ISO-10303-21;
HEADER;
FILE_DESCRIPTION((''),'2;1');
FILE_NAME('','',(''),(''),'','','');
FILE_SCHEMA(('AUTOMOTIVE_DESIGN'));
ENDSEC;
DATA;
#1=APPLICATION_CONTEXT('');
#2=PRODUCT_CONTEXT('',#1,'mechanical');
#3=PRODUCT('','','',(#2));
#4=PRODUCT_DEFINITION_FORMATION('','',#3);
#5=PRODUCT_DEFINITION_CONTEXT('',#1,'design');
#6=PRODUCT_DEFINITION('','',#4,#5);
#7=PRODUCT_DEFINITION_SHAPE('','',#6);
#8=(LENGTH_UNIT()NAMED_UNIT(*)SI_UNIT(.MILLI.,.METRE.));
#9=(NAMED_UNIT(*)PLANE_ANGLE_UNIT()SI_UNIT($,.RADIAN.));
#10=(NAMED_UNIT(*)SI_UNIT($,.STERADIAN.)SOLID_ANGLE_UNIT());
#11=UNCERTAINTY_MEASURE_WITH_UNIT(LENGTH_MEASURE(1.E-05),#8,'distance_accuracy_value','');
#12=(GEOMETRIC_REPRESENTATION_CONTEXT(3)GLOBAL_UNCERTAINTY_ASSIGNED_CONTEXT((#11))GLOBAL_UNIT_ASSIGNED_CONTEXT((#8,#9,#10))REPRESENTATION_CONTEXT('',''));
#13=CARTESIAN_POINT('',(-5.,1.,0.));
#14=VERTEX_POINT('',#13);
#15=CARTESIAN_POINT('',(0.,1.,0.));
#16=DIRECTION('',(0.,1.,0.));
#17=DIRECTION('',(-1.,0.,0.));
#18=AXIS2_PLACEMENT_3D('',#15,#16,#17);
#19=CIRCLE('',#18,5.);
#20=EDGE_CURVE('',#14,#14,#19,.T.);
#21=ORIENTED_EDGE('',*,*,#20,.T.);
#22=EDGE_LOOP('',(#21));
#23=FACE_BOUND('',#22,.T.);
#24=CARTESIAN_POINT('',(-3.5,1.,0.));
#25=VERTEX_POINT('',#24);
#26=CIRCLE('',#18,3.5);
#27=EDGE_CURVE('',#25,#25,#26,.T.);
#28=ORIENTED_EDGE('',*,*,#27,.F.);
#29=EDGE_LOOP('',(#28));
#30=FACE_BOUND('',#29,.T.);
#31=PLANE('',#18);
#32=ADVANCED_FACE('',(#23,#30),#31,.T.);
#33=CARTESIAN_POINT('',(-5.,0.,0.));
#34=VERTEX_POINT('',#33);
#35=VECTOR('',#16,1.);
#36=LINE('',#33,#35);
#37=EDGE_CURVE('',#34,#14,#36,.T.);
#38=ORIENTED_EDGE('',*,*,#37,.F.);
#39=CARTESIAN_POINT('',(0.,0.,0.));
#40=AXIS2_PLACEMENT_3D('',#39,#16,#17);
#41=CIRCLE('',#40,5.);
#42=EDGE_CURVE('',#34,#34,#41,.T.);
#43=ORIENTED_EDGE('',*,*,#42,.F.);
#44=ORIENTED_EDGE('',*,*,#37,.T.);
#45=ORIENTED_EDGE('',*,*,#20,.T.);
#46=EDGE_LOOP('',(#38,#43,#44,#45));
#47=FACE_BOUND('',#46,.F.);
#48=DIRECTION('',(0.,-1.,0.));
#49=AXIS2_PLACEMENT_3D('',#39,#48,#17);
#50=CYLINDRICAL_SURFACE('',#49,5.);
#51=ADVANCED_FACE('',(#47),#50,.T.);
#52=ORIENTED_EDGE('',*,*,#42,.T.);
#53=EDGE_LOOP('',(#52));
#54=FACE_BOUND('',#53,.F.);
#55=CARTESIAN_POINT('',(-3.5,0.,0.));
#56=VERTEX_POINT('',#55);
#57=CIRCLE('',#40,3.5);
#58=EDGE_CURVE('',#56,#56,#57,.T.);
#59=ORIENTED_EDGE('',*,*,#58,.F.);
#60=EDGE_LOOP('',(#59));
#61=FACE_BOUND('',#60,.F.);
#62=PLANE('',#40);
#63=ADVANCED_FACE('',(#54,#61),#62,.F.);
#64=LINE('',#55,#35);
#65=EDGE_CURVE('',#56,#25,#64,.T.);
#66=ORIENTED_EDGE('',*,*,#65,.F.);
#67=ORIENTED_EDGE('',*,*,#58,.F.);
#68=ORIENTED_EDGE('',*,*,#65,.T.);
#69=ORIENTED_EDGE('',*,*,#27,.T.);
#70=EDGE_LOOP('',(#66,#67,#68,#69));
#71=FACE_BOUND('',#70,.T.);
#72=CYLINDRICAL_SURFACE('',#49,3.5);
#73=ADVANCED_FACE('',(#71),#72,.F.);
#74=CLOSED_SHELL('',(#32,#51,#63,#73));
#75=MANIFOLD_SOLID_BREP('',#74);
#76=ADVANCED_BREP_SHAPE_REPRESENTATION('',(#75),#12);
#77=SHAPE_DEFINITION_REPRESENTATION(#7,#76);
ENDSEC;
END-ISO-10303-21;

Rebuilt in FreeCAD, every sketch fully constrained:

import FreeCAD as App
import Part
import Sketcher
from FreeCAD import Vector

doc = App.newDocument("Part")
body = doc.addObject("PartDesign::Body", "Body")

# Sketch on XZ plane
sketch1 = body.newObject("Sketcher::SketchObject", "Sketch")
sketch1.AttachmentSupport = (doc.getObject("XZ_Plane"), [""])
sketch1.MapMode = "FlatFace"
sketch1.addGeometry([
    Part.Circle(Vector(0, 0, 0), Vector(0, 0, 1), 5),
    Part.Circle(Vector(0, 0, 0), Vector(0, 0, 1), 3.5),
], False)
sketch1.addConstraint([
    Sketcher.Constraint("Coincident", 0, 3, -1, 1),
    Sketcher.Constraint("Coincident", 1, 3, -1, 1),
    Sketcher.Constraint("Diameter", 0, 10.0),
    Sketcher.Constraint("Diameter", 1, 7.0),
])
pad1 = body.newObject("PartDesign::Pad", "Pad")
pad1.Profile = sketch1
pad1.Length = 1
pad1.Reversed = True

doc.recompute()
